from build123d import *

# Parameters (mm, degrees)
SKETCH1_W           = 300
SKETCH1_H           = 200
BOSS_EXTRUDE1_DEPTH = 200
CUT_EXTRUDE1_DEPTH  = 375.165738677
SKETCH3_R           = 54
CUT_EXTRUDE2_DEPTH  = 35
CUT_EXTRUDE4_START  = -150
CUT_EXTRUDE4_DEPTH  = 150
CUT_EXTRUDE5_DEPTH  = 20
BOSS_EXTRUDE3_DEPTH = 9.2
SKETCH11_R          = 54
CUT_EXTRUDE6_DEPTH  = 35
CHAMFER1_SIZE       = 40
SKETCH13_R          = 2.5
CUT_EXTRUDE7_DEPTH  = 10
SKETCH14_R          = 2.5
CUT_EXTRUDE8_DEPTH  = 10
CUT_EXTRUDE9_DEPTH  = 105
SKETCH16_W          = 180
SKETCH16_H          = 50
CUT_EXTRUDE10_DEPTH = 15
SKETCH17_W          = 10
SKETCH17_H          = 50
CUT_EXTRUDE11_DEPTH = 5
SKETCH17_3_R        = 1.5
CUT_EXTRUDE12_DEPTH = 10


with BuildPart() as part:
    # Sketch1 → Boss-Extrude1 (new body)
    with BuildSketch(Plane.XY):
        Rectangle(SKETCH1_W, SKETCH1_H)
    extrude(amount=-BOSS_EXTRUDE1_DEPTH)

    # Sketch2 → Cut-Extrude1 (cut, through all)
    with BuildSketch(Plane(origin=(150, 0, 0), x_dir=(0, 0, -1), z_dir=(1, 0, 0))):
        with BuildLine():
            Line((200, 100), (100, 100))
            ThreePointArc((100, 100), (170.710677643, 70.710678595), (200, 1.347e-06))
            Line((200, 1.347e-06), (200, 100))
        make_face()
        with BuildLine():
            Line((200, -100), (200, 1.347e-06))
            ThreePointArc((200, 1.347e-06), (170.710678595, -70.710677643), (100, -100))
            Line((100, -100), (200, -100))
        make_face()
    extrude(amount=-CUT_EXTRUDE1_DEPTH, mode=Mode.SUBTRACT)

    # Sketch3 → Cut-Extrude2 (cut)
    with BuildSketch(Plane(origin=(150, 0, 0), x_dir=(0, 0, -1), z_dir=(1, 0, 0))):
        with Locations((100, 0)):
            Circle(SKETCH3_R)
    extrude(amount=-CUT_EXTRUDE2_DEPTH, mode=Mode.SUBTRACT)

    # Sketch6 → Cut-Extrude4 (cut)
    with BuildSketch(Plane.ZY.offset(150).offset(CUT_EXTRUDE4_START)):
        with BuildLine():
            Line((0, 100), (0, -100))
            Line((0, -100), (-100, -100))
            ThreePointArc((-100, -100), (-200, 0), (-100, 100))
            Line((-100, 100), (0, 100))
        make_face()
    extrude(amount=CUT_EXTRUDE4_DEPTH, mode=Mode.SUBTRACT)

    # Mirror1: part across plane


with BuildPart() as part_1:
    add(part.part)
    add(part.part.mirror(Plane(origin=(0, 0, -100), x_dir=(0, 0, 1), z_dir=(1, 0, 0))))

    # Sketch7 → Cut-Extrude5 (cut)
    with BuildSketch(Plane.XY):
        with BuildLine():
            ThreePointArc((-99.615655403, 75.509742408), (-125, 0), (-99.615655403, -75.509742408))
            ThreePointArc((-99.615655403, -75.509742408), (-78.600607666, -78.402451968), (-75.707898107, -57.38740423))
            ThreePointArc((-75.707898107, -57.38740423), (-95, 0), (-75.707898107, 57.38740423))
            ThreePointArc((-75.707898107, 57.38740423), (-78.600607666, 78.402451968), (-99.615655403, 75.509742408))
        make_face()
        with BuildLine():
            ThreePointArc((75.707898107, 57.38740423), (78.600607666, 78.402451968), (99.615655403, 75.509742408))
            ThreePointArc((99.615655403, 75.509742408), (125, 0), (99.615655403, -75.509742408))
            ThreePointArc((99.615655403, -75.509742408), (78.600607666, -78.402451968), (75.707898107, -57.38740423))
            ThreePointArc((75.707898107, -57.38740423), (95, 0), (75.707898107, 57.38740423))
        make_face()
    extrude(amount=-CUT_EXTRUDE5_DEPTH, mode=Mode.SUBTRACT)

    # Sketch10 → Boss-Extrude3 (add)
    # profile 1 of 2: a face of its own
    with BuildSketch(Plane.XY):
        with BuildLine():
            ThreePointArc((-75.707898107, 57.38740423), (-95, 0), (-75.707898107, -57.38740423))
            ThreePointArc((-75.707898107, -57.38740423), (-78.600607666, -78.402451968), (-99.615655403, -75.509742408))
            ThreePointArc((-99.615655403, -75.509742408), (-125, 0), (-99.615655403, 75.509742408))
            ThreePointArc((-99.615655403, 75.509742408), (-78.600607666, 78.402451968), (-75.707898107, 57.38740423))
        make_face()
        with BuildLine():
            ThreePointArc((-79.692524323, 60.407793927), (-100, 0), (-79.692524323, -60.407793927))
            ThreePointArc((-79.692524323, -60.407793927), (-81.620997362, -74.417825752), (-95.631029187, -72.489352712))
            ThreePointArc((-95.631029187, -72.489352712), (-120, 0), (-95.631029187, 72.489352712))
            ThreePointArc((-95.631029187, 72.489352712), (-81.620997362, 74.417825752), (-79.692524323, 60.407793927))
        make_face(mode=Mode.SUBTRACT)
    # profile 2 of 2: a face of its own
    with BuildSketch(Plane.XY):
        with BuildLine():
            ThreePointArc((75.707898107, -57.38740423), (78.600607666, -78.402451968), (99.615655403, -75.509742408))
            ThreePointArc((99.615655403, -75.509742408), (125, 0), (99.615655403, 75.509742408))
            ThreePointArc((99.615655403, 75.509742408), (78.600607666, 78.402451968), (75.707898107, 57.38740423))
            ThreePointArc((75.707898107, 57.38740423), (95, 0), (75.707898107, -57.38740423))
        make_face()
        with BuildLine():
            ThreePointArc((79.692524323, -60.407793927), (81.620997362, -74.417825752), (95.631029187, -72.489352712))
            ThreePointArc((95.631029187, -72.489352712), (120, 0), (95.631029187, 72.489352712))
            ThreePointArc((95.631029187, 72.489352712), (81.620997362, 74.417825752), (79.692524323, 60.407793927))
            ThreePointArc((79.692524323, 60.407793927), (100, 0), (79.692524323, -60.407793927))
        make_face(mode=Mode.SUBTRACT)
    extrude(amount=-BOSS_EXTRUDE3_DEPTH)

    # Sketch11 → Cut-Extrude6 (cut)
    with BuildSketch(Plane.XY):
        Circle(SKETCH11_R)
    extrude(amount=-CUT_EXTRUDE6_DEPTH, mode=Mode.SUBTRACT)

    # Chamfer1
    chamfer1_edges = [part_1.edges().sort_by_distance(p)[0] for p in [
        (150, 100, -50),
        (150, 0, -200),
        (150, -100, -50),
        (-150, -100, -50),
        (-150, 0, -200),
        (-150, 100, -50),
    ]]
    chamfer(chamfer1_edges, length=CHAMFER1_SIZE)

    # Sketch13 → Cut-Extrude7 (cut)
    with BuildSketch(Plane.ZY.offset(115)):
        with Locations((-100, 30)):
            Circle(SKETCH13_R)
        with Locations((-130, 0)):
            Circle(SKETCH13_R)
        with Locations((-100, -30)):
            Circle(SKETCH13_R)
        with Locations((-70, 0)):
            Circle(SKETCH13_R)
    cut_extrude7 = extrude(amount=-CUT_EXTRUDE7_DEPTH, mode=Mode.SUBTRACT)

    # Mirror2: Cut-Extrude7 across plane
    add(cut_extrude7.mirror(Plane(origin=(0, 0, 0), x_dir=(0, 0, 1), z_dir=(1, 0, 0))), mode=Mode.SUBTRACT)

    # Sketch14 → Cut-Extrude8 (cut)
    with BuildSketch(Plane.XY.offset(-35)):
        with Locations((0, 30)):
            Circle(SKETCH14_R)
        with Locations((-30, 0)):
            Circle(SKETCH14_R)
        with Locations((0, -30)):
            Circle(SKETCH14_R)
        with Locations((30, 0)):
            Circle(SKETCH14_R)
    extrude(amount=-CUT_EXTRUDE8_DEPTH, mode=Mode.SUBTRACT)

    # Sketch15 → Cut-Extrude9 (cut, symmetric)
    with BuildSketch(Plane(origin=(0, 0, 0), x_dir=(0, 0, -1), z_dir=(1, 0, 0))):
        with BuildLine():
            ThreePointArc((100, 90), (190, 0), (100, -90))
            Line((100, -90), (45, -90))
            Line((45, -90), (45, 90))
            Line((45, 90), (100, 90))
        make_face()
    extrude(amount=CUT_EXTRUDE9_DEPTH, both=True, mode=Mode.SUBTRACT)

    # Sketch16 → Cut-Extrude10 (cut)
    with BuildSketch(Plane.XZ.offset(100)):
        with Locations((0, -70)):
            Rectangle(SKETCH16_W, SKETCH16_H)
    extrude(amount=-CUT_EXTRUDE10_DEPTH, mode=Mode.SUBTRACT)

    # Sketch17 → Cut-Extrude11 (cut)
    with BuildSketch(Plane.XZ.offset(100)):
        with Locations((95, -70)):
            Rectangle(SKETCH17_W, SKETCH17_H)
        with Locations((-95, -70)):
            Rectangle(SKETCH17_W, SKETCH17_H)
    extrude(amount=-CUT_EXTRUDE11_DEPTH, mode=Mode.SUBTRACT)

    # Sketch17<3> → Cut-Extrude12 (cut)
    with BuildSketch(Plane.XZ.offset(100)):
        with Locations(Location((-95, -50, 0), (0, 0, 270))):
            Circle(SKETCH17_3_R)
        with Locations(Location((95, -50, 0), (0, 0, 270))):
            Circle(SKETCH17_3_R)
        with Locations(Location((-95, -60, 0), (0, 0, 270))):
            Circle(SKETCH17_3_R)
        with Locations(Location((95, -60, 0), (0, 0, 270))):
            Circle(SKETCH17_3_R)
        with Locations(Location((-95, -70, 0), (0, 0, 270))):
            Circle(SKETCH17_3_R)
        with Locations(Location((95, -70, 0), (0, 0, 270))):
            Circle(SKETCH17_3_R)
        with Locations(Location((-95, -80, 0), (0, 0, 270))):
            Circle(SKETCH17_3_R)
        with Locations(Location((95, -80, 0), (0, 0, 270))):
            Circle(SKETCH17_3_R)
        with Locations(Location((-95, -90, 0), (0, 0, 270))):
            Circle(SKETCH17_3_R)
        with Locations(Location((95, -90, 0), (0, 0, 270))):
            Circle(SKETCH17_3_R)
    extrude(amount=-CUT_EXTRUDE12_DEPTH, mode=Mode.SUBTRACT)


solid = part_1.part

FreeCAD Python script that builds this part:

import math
import FreeCAD as App
import Part
import Sketcher

V = App.Vector


def edges_at(feature, points):
    """Names of the edges that pass closest to the given points."""
    edges = feature.Shape.Edges
    near = lambda p: min(range(len(edges)), key=lambda i: edges[i].distToShape(Part.Vertex(*p))[0])
    return sorted({f"Edge{near(p) + 1}" for p in points})


def add_polygon(sketch, points):
    """Adds a closed chain of lines whose ends are joined by coincident constraints."""
    first, n = sketch.GeometryCount, len(points)
    for a, b in zip(points, points[1:] + points[:1]):
        sketch.addGeometry(Part.LineSegment(App.Vector(*a, 0), App.Vector(*b, 0)), False)
    for i in range(n):
        sketch.addConstraint(Sketcher.Constraint("Coincident", first + i, 2, first + (i + 1) % n, 1))

doc = App.newDocument("Part")
body = doc.addObject("PartDesign::Body", "Body")

sketch1 = body.newObject("Sketcher::SketchObject", "Sketch")
sketch1.AttachmentSupport = (doc.getObject("XY_Plane"), [""])
sketch1.MapMode = "FlatFace"
add_polygon(sketch1, [(-150, 100), (-150, -100), (150, -100), (150, 100)])
sketch1.addConstraint([
    Sketcher.Constraint("Vertical", 0),
    Sketcher.Constraint("Horizontal", 1),
    Sketcher.Constraint("Vertical", 2),
    Sketcher.Constraint("Horizontal", 3),
    Sketcher.Constraint("Symmetric", 0, 2, 2, 2, -1, 1),
    Sketcher.Constraint("DistanceX", 1, 1, 1, 2, 300.0),
    Sketcher.Constraint("DistanceY", 0, 2, 0, 1, 200.0),
])
pad1 = body.newObject("PartDesign::Pad", "Pad")
pad1.Profile = sketch1
pad1.Length = 200
pad1.Reversed = True

sketch2 = body.newObject("Sketcher::SketchObject", "Sketch001")
sketch2.AttachmentSupport = (doc.getObject("YZ_Plane"), [""])
sketch2.MapMode = "FlatFace"
sketch2.AttachmentOffset = App.Placement(V(0, 0, 150), App.Rotation())
sketch2.addGeometry([
    Part.LineSegment(V(100, -200, 0), V(100, -100, 0)),
    Part.ArcOfCircle(Part.Circle(V(0, -100, 0), V(0, 0, 1), 100), math.radians(-89.999999), math.radians(0)),
    Part.LineSegment(V(0.000001, -200, 0), V(100, -200, 0)),
    Part.LineSegment(V(-100, -200, 0), V(0.000001, -200, 0)),
    Part.ArcOfCircle(Part.Circle(V(0, -100, 0), V(0, 0, 1), 100), math.radians(180), math.radians(270.000001)),
    Part.LineSegment(V(-100, -100, 0), V(-100, -200, 0)),
], False)
sketch2.addConstraint([
    Sketcher.Constraint("Tangent", 0, 2, 1, 2),
    Sketcher.Constraint("Tangent", 1, 1, 2, 1),
    Sketcher.Constraint("Coincident", 2, 2, 0, 1),
    Sketcher.Constraint("Tangent", 3, 2, 4, 2),
    Sketcher.Constraint("Tangent", 4, 1, 5, 1),
    Sketcher.Constraint("Coincident", 5, 2, 3, 1),
    Sketcher.Constraint("Vertical", 0),
    Sketcher.Constraint("Horizontal", 2),
    Sketcher.Constraint("Horizontal", 3),
    Sketcher.Constraint("Vertical", 5),
    Sketcher.Constraint("Coincident", 4, 3, 1, 3),
    Sketcher.Constraint("Equal", 1, 4),
    Sketcher.Constraint("PointOnObject", 1, 3, -2),
    Sketcher.Constraint("Radius", 1, 100.0),
    Sketcher.Constraint("DistanceY", 1, 3, -1, 1, 100.0),
])
pocket1 = body.newObject("PartDesign::Pocket", "Pocket")
pocket1.Profile = sketch2
pocket1.Type = "ThroughAll"

sketch3 = body.newObject("Sketcher::SketchObject", "Sketch002")
sketch3.AttachmentSupport = (doc.getObject("YZ_Plane"), [""])
sketch3.MapMode = "FlatFace"
sketch3.AttachmentOffset = App.Placement(V(0, 0, 150), App.Rotation())
sketch3.addGeometry(Part.Circle(V(0, -100, 0), V(0, 0, 1), 54), False)
sketch3.addConstraint([
    Sketcher.Constraint("PointOnObject", 0, 3, -2),
    Sketcher.Constraint("Diameter", 0, 108.0),
    Sketcher.Constraint("DistanceY", 0, 3, -1, 1, 100.0),
])
pocket2 = body.newObject("PartDesign::Pocket", "Pocket001")
pocket2.Profile = sketch3
pocket2.Length = 35

sketch4 = body.newObject("Sketcher::SketchObject", "Sketch003")
sketch4.AttachmentSupport = (doc.getObject("YZ_Plane"), [""])
sketch4.MapMode = "FlatFace"
sketch4.addGeometry([
    Part.LineSegment(V(-100, 0, 0), V(100, 0, 0)),
    Part.LineSegment(V(100, 0, 0), V(100, -100, 0)),
    Part.ArcOfCircle(Part.Circle(V(0, -100, 0), V(0, 0, 1), 100), math.radians(180), math.radians(360)),
    Part.LineSegment(V(-100, -100, 0), V(-100, 0, 0)),
], False)
sketch4.addConstraint([
    Sketcher.Constraint("Coincident", 0, 2, 1, 1),
    Sketcher.Constraint("Tangent", 1, 2, 2, 2),
    Sketcher.Constraint("Tangent", 2, 1, 3, 1),
    Sketcher.Constraint("Coincident", 3, 2, 0, 1),
    Sketcher.Constraint("Horizontal", 0),
    Sketcher.Constraint("Vertical", 1),
    Sketcher.Constraint("Vertical", 3),
    Sketcher.Constraint("Symmetric", 0, 2, 3, 2, -1, 1),
    Sketcher.Constraint("Radius", 2, 100.0),
    Sketcher.Constraint("DistanceY", 1, 2, 1, 1, 100.0),
])
pocket3 = body.newObject("PartDesign::Pocket", "Pocket002")
pocket3.Profile = sketch4
pocket3.Length = 150
body2 = doc.addObject("PartDesign::Body", "Body001")
doc.recompute()

body2.BaseFeature = body
doc.recompute()

mirroring = doc.addObject("Part::Mirroring", "Mirroring")
mirroring.Source = body
mirroring.Base = V(0, 0, -100)
mirroring.Normal = V(1, 0, 0)
body3 = doc.addObject("PartDesign::Body", "Body002")
body3.BaseFeature = mirroring
boolean = body2.newObject("PartDesign::Boolean", "Boolean")
boolean.Type = "Fuse"
boolean.addObjects([body3])
doc.recompute()

sketch5 = body2.newObject("Sketcher::SketchObject", "Sketch004")
sketch5.AttachmentSupport = (doc.getObject("XY_Plane001"), [""])
sketch5.MapMode = "FlatFace"
sketch5.addGeometry([
    Part.ArcOfCircle(Part.Circle(V(0, 0, 0), V(0, 0, 1), 125), math.radians(142.83748), math.radians(217.16252)),
    Part.ArcOfCircle(Part.Circle(V(-87.661777, -66.448573, 0), V(0, 0, 1), 15), math.radians(-142.83748), math.radians(37.16252)),
    Part.ArcOfCircle(Part.Circle(V(0, 0, 0), V(0, 0, 1), 95), math.radians(142.83748), math.radians(217.16252)),
    Part.ArcOfCircle(Part.Circle(V(-87.661777, 66.448573, 0), V(0, 0, 1), 15), math.radians(-37.16252), math.radians(142.83748)),
    Part.ArcOfCircle(Part.Circle(V(87.661777, 66.448573, 0), V(0, 0, 1), 15), math.radians(37.16252), math.radians(217.16252)),
    Part.ArcOfCircle(Part.Circle(V(0, 0, 0), V(0, 0, 1), 95), math.radians(-37.16252), math.radians(37.16252)),
    Part.ArcOfCircle(Part.Circle(V(87.661777, -66.448573, 0), V(0, 0, 1), 15), math.radians(142.83748), math.radians(322.83748)),
    Part.ArcOfCircle(Part.Circle(V(0, 0, 0), V(0, 0, 1), 125), math.radians(-37.16252), math.radians(37.16252)),
], False)
sketch5.addConstraint([
    Sketcher.Constraint("Tangent", 0, 2, 1, 1),
    Sketcher.Constraint("Tangent", 1, 2, 2, 2),
    Sketcher.Constraint("Tangent", 2, 1, 3, 1),
    Sketcher.Constraint("Tangent", 3, 2, 0, 1),
    Sketcher.Constraint("Tangent", 4, 2, 5, 2),
    Sketcher.Constraint("Tangent", 5, 1, 6, 1),
    Sketcher.Constraint("Tangent", 6, 2, 7, 1),
    Sketcher.Constraint("Tangent", 7, 2, 4, 1),
    Sketcher.Constraint("Coincident", 0, 3, -1, 1),
    Sketcher.Constraint("Coincident", 2, 3, -1, 1),
    Sketcher.Constraint("Coincident", 5, 3, -1, 1),
    Sketcher.Constraint("Coincident", 7, 3, -1, 1),
    Sketcher.Constraint("Equal", 3, 4),
    Sketcher.Constraint("Equal", 2, 5),
    Sketcher.Constraint("Horizontal", 3, 3, 4, 3),
    Sketcher.Constraint("Horizontal", 1, 3, 6, 3),
    Sketcher.Constraint("Vertical", 1, 3, 3, 3),
    Sketcher.Constraint("Radius", 0, 125.0),
    Sketcher.Constraint("Radius", 1, 15.0),
    Sketcher.Constraint("DistanceX", 1, 2, -1, 1, 75.707898),
])
pocket4 = body2.newObject("PartDesign::Pocket", "Pocket003")
pocket4.Profile = sketch5
pocket4.Length = 20

sketch6 = body2.newObject("Sketcher::SketchObject", "Sketch005")
sketch6.AttachmentSupport = (doc.getObject("XY_Plane001"), [""])
sketch6.MapMode = "FlatFace"
sketch6.addGeometry([
    Part.ArcOfCircle(Part.Circle(V(0, 0, 0), V(0, 0, 1), 95), math.radians(142.83748), math.radians(217.16252)),
    Part.ArcOfCircle(Part.Circle(V(-87.661777, 66.448573, 0), V(0, 0, 1), 15), math.radians(-37.16252), math.radians(142.83748)),
    Part.ArcOfCircle(Part.Circle(V(0, 0, 0), V(0, 0, 1), 125), math.radians(142.83748), math.radians(217.16252)),
    Part.ArcOfCircle(Part.Circle(V(-87.661777, -66.448573, 0), V(0, 0, 1), 15), math.radians(-142.83748), math.radians(37.16252)),
    Part.ArcOfCircle(Part.Circle(V(0, 0, 0), V(0, 0, 1), 100), math.radians(142.83748), math.radians(217.16252)),
    Part.ArcOfCircle(Part.Circle(V(-87.661777, -66.448573, 0), V(0, 0, 1), 10), math.radians(-142.83748), math.radians(37.16252)),
    Part.ArcOfCircle(Part.Circle(V(0, 0, 0), V(0, 0, 1), 120), math.radians(142.83748), math.radians(217.16252)),
    Part.ArcOfCircle(Part.Circle(V(-87.661777, 66.448573, 0), V(0, 0, 1), 10), math.radians(-37.16252), math.radians(142.83748)),
    Part.ArcOfCircle(Part.Circle(V(87.661777, -66.448573, 0), V(0, 0, 1), 15), math.radians(142.83748), math.radians(322.83748)),
    Part.ArcOfCircle(Part.Circle(V(0, 0, 0), V(0, 0, 1), 125), math.radians(-37.16252), math.radians(37.16252)),
    Part.ArcOfCircle(Part.Circle(V(87.661777, 66.448573, 0), V(0, 0, 1), 15), math.radians(37.16252), math.radians(217.16252)),
    Part.ArcOfCircle(Part.Circle(V(0, 0, 0), V(0, 0, 1), 95), math.radians(-37.16252), math.radians(37.16252)),
    Part.ArcOfCircle(Part.Circle(V(87.661777, -66.448573, 0), V(0, 0, 1), 10), math.radians(142.83748), math.radians(322.83748)),
    Part.ArcOfCircle(Part.Circle(V(0, 0, 0), V(0, 0, 1), 100), math.radians(-37.16252), math.radians(37.16252)),
    Part.ArcOfCircle(Part.Circle(V(87.661777, 66.448573, 0), V(0, 0, 1), 10), math.radians(37.16252), math.radians(217.16252)),
    Part.ArcOfCircle(Part.Circle(V(0, 0, 0), V(0, 0, 1), 120), math.radians(-37.16252), math.radians(37.16252)),
], False)
sketch6.addConstraint([
    Sketcher.Constraint("Tangent", 0, 1, 1, 1),
    Sketcher.Constraint("Tangent", 1, 2, 2, 1),
    Sketcher.Constraint("Tangent", 2, 2, 3, 1),
    Sketcher.Constraint("Tangent", 3, 2, 0, 2),
    Sketcher.Constraint("Tangent", 4, 2, 5, 2),
    Sketcher.Constraint("Tangent", 5, 1, 6, 2),
    Sketcher.Constraint("Tangent", 6, 1, 7, 2),
    Sketcher.Constraint("Tangent", 7, 1, 4, 1),
    Sketcher.Constraint("Tangent", 8, 2, 9, 1),
    Sketcher.Constraint("Tangent", 9, 2, 10, 1),
    Sketcher.Constraint("Tangent", 10, 2, 11, 2),
    Sketcher.Constraint("Tangent", 11, 1, 8, 1),
    Sketcher.Constraint("Tangent", 12, 1, 13, 1),
    Sketcher.Constraint("Tangent", 13, 2, 14, 2),
    Sketcher.Constraint("Tangent", 14, 1, 15, 2),
    Sketcher.Constraint("Tangent", 15, 1, 12, 2),
    Sketcher.Constraint("Coincident", 0, 3, -1, 1),
    Sketcher.Constraint("Coincident", 2, 3, -1, 1),
    Sketcher.Constraint("Coincident", 4, 3, -1, 1),
    Sketcher.Constraint("Coincident", 6, 3, -1, 1),
    Sketcher.Constraint("Coincident", 9, 3, -1, 1),
    Sketcher.Constraint("Coincident", 11, 3, -1, 1),
    Sketcher.Constraint("Coincident", 13, 3, -1, 1),
    Sketcher.Constraint("Coincident", 15, 3, -1, 1),
    Sketcher.Constraint("Coincident", 5, 3, 3, 3),
    Sketcher.Constraint("Coincident", 12, 3, 8, 3),
    Sketcher.Constraint("Equal", 3, 8),
    Sketcher.Constraint("Equal", 2, 9),
    Sketcher.Constraint("Equal", 7, 12),
    Sketcher.Constraint("Horizontal", 5, 3, 8, 3),
    Sketcher.Constraint("Horizontal", 7, 3, 10, 3),
    Sketcher.Constraint("Horizontal", 7, 3, 14, 3),
    Sketcher.Constraint("Horizontal", 1, 2, 9, 2),
    Sketcher.Constraint("Vertical", 1, 3, 3, 3),
    Sketcher.Constraint("Radius", 0, 95.0),
    Sketcher.Constraint("Radius", 1, 15.0),
    Sketcher.Constraint("Radius", 4, 100.0),
    Sketcher.Constraint("DistanceX", 0, 1, -1, 1, 75.707898),
])
pad2 = body2.newObject("PartDesign::Pad", "Pad001")
pad2.Profile = sketch6
pad2.Length = 9.2
pad2.Reversed = True

sketch7 = body2.newObject("Sketcher::SketchObject", "Sketch006")
sketch7.AttachmentSupport = (doc.getObject("XY_Plane001"), [""])
sketch7.MapMode = "FlatFace"
sketch7.addGeometry(Part.Circle(V(0, 0, 0), V(0, 0, 1), 54), False)
sketch7.addConstraint([
    Sketcher.Constraint("Coincident", 0, 3, -1, 1),
    Sketcher.Constraint("Diameter", 0, 108.0),
])
pocket5 = body2.newObject("PartDesign::Pocket", "Pocket004")
pocket5.Profile = sketch7
pocket5.Length = 35
doc.recompute()

chamfer = body2.newObject("PartDesign::Chamfer", "Chamfer")
chamfer.Base = (pocket5, edges_at(pocket5, [
    (150, 100, -50),
    (150, -70.711, -170.711),
    (150, -100, -50),
    (-150, -100, -50),
    (-150, -70.711, -170.711),
    (-150, 100, -50),
]))
chamfer.Size = 40

sketch8 = body2.newObject("Sketcher::SketchObject", "Sketch007")
sketch8.AttachmentSupport = (doc.getObject("YZ_Plane001"), [""])
sketch8.MapMode = "FlatFace"
sketch8.AttachmentOffset = App.Placement(V(0, 0, -115), App.Rotation())
sketch8.addGeometry([
    Part.Circle(V(30, -100, 0), V(0, 0, 1), 2.5),
    Part.Circle(V(0, -130, 0), V(0, 0, 1), 2.5),
    Part.Circle(V(-30, -100, 0), V(0, 0, 1), 2.5),
    Part.Circle(V(0, -70, 0), V(0, 0, 1), 2.5),
], False)
sketch8.addConstraint([
    Sketcher.Constraint("Equal", 0, 1),
    Sketcher.Constraint("Equal", 1, 2),
    Sketcher.Constraint("Equal", 2, 3),
    Sketcher.Constraint("Symmetric", 0, 3, 2, 3, -2),
    Sketcher.Constraint("PointOnObject", 1, 3, -2),
    Sketcher.Constraint("PointOnObject", 3, 3, -2),
    Sketcher.Constraint("Diameter", 0, 5.0),
    Sketcher.Constraint("DistanceX", -1, 1, 0, 3, 30.0),
    Sketcher.Constraint("DistanceY", 0, 3, -1, 1, 100.0),
    Sketcher.Constraint("DistanceY", 1, 3, -1, 1, 130.0),
    Sketcher.Constraint("DistanceY", 3, 3, -1, 1, 70.0),
])
pocket6 = body2.newObject("PartDesign::Pocket", "Pocket005")
pocket6.Profile = sketch8
pocket6.Length = 10
pocket6.Reversed = True
doc.recompute()

mirrored = body2.newObject("PartDesign::Mirrored", "Mirrored")
mirrored.Originals = [pocket6]
mirrored.MirrorPlane = (doc.getObject("YZ_Plane001"), [""])
body2.Tip = mirrored

sketch9 = body2.newObject("Sketcher::SketchObject", "Sketch008")
sketch9.AttachmentSupport = (doc.getObject("XY_Plane001"), [""])
sketch9.MapMode = "FlatFace"
sketch9.AttachmentOffset = App.Placement(V(0, 0, -35), App.Rotation())
sketch9.addGeometry([
    Part.Circle(V(0, 30, 0), V(0, 0, 1), 2.5),
    Part.Circle(V(-30, 0, 0), V(0, 0, 1), 2.5),
    Part.Circle(V(0, -30, 0), V(0, 0, 1), 2.5),
    Part.Circle(V(30, 0, 0), V(0, 0, 1), 2.5),
], False)
sketch9.addConstraint([
    Sketcher.Constraint("Equal", 0, 1),
    Sketcher.Constraint("Equal", 1, 2),
    Sketcher.Constraint("Equal", 2, 3),
    Sketcher.Constraint("Symmetric", 0, 3, 2, 3, -1, 1),
    Sketcher.Constraint("Symmetric", 1, 3, 3, 3, -1, 1),
    Sketcher.Constraint("PointOnObject", 0, 3, -2),
    Sketcher.Constraint("PointOnObject", 1, 3, -1),
    Sketcher.Constraint("Diameter", 0, 5.0),
    Sketcher.Constraint("DistanceY", -1, 1, 0, 3, 30.0),
    Sketcher.Constraint("DistanceX", 1, 3, -1, 1, 30.0),
])
pocket7 = body2.newObject("PartDesign::Pocket", "Pocket006")
pocket7.Profile = sketch9
pocket7.Length = 10

sketch10 = body2.newObject("Sketcher::SketchObject", "Sketch009")
sketch10.AttachmentSupport = (doc.getObject("YZ_Plane001"), [""])
sketch10.MapMode = "FlatFace"
sketch10.addGeometry([
    Part.ArcOfCircle(Part.Circle(V(0, -100, 0), V(0, 0, 1), 90), math.radians(180), math.radians(360)),
    Part.LineSegment(V(90, -100, 0), V(90, -45, 0)),
    Part.LineSegment(V(90, -45, 0), V(-90, -45, 0)),
    Part.LineSegment(V(-90, -45, 0), V(-90, -100, 0)),
], False)
sketch10.addConstraint([
    Sketcher.Constraint("Tangent", 0, 2, 1, 1),
    Sketcher.Constraint("Coincident", 1, 2, 2, 1),
    Sketcher.Constraint("Coincident", 2, 2, 3, 1),
    Sketcher.Constraint("Tangent", 3, 2, 0, 1),
    Sketcher.Constraint("Vertical", 1),
    Sketcher.Constraint("Horizontal", 2),
    Sketcher.Constraint("Vertical", 3),
    Sketcher.Constraint("PointOnObject", 0, 3, -2),
    Sketcher.Constraint("Radius", 0, 90.0),
    Sketcher.Constraint("DistanceY", 1, 1, 1, 2, 55.0),
    Sketcher.Constraint("DistanceY", 0, 3, -1, 1, 100.0),
])
pocket8 = body2.newObject("PartDesign::Pocket", "Pocket007")
pocket8.Profile = sketch10
pocket8.Length = 210
pocket8.Midplane = True

sketch11 = body2.newObject("Sketcher::SketchObject", "Sketch010")
sketch11.AttachmentSupport = (doc.getObject("XZ_Plane001"), [""])
sketch11.MapMode = "FlatFace"
sketch11.AttachmentOffset = App.Placement(V(0, 0, 100), App.Rotation())
add_polygon(sketch11, [(-90, -45), (-90, -95), (90, -95), (90, -45)])
sketch11.addConstraint([
    Sketcher.Constraint("Vertical", 0),
    Sketcher.Constraint("Horizontal", 1),
    Sketcher.Constraint("Vertical", 2),
    Sketcher.Constraint("Horizontal", 3),
    Sketcher.Constraint("DistanceX", 1, 1, 1, 2, 180.0),
    Sketcher.Constraint("DistanceY", 0, 2, 0, 1, 50.0),
    Sketcher.Constraint("DistanceX", 0, 2, -1, 1, 90.0),
    Sketcher.Constraint("DistanceY", 0, 2, -1, 1, 95.0),
])
pocket9 = body2.newObject("PartDesign::Pocket", "Pocket008")
pocket9.Profile = sketch11
pocket9.Length = 15

sketch12 = body2.newObject("Sketcher::SketchObject", "Sketch011")
sketch12.AttachmentSupport = (doc.getObject("XZ_Plane001"), [""])
sketch12.MapMode = "FlatFace"
sketch12.AttachmentOffset = App.Placement(V(0, 0, 100), App.Rotation())
add_polygon(sketch12, [(90, -45), (90, -95), (100, -95), (100, -45)])
add_polygon(sketch12, [(-100, -45), (-100, -95), (-90, -95), (-90, -45)])
sketch12.addConstraint([
    Sketcher.Constraint("Vertical", 0),
    Sketcher.Constraint("Horizontal", 1),
    Sketcher.Constraint("Vertical", 2),
    Sketcher.Constraint("Horizontal", 3),
    Sketcher.Constraint("Vertical", 4),
    Sketcher.Constraint("Horizontal", 5),
    Sketcher.Constraint("Vertical", 6),
    Sketcher.Constraint("Horizontal", 7),
    Sketcher.Constraint("Symmetric", 1, 2, 4, 2, -2),
    Sketcher.Constraint("Symmetric", 3, 2, 6, 2, -2),
    Sketcher.Constraint("DistanceX", 1, 1, 1, 2, 10.0),
    Sketcher.Constraint("DistanceY", 0, 2, 0, 1, 50.0),
    Sketcher.Constraint("DistanceX", -1, 1, 0, 2, 90.0),
    Sketcher.Constraint("DistanceY", 0, 2, -1, 1, 95.0),
])
pocket10 = body2.newObject("PartDesign::Pocket", "Pocket009")
pocket10.Profile = sketch12
pocket10.Length = 5

sketch13 = body2.newObject("Sketcher::SketchObject", "Sketch012")
sketch13.AttachmentSupport = (doc.getObject("XZ_Plane001"), [""])
sketch13.MapMode = "FlatFace"
sketch13.AttachmentOffset = App.Placement(V(0, 0, 100), App.Rotation())
sketch13.addGeometry([
    Part.Circle(V(-95, -50, 0), V(0, 0, 1), 1.5),
    Part.Circle(V(95, -50, 0), V(0, 0, 1), 1.5),
    Part.Circle(V(-95, -60, 0), V(0, 0, 1), 1.5),
    Part.Circle(V(95, -60, 0), V(0, 0, 1), 1.5),
    Part.Circle(V(-95, -70, 0), V(0, 0, 1), 1.5),
    Part.Circle(V(95, -70, 0), V(0, 0, 1), 1.5),
    Part.Circle(V(-95, -80, 0), V(0, 0, 1), 1.5),
    Part.Circle(V(95, -80, 0), V(0, 0, 1), 1.5),
    Part.Circle(V(-95, -90, 0), V(0, 0, 1), 1.5),
    Part.Circle(V(95, -90, 0), V(0, 0, 1), 1.5),
], False)
sketch13.addConstraint([
    Sketcher.Constraint("Equal", 0, 1),
    Sketcher.Constraint("Equal", 1, 2),
    Sketcher.Constraint("Equal", 2, 3),
    Sketcher.Constraint("Equal", 3, 4),
    Sketcher.Constraint("Equal", 4, 5),
    Sketcher.Constraint("Equal", 5, 6),
    Sketcher.Constraint("Equal", 6, 7),
    Sketcher.Constraint("Equal", 7, 8),
    Sketcher.Constraint("Equal", 8, 9),
    Sketcher.Constraint("Symmetric", 0, 3, 1, 3, -2),
    Sketcher.Constraint("Symmetric", 2, 3, 3, 3, -2),
    Sketcher.Constraint("Symmetric", 4, 3, 5, 3, -2),
    Sketcher.Constraint("Symmetric", 6, 3, 7, 3, -2),
    Sketcher.Constraint("Symmetric", 8, 3, 9, 3, -2),
    Sketcher.Constraint("Vertical", 0, 3, 2, 3),
    Sketcher.Constraint("Vertical", 2, 3, 4, 3),
    Sketcher.Constraint("Vertical", 4, 3, 6, 3),
    Sketcher.Constraint("Vertical", 6, 3, 8, 3),
    Sketcher.Constraint("Diameter", 0, 3.0),
    Sketcher.Constraint("DistanceX", 0, 3, -1, 1, 95.0),
    Sketcher.Constraint("DistanceY", 0, 3, -1, 1, 50.0),
    Sketcher.Constraint("DistanceY", 2, 3, -1, 1, 60.0),
    Sketcher.Constraint("DistanceY", 4, 3, -1, 1, 70.0),
    Sketcher.Constraint("DistanceY", 6, 3, -1, 1, 80.0),
    Sketcher.Constraint("DistanceY", 8, 3, -1, 1, 90.0),
])
pocket11 = body2.newObject("PartDesign::Pocket", "Pocket010")
pocket11.Profile = sketch13
pocket11.Length = 10
mirroring.Visibility = False

doc.recompute()
